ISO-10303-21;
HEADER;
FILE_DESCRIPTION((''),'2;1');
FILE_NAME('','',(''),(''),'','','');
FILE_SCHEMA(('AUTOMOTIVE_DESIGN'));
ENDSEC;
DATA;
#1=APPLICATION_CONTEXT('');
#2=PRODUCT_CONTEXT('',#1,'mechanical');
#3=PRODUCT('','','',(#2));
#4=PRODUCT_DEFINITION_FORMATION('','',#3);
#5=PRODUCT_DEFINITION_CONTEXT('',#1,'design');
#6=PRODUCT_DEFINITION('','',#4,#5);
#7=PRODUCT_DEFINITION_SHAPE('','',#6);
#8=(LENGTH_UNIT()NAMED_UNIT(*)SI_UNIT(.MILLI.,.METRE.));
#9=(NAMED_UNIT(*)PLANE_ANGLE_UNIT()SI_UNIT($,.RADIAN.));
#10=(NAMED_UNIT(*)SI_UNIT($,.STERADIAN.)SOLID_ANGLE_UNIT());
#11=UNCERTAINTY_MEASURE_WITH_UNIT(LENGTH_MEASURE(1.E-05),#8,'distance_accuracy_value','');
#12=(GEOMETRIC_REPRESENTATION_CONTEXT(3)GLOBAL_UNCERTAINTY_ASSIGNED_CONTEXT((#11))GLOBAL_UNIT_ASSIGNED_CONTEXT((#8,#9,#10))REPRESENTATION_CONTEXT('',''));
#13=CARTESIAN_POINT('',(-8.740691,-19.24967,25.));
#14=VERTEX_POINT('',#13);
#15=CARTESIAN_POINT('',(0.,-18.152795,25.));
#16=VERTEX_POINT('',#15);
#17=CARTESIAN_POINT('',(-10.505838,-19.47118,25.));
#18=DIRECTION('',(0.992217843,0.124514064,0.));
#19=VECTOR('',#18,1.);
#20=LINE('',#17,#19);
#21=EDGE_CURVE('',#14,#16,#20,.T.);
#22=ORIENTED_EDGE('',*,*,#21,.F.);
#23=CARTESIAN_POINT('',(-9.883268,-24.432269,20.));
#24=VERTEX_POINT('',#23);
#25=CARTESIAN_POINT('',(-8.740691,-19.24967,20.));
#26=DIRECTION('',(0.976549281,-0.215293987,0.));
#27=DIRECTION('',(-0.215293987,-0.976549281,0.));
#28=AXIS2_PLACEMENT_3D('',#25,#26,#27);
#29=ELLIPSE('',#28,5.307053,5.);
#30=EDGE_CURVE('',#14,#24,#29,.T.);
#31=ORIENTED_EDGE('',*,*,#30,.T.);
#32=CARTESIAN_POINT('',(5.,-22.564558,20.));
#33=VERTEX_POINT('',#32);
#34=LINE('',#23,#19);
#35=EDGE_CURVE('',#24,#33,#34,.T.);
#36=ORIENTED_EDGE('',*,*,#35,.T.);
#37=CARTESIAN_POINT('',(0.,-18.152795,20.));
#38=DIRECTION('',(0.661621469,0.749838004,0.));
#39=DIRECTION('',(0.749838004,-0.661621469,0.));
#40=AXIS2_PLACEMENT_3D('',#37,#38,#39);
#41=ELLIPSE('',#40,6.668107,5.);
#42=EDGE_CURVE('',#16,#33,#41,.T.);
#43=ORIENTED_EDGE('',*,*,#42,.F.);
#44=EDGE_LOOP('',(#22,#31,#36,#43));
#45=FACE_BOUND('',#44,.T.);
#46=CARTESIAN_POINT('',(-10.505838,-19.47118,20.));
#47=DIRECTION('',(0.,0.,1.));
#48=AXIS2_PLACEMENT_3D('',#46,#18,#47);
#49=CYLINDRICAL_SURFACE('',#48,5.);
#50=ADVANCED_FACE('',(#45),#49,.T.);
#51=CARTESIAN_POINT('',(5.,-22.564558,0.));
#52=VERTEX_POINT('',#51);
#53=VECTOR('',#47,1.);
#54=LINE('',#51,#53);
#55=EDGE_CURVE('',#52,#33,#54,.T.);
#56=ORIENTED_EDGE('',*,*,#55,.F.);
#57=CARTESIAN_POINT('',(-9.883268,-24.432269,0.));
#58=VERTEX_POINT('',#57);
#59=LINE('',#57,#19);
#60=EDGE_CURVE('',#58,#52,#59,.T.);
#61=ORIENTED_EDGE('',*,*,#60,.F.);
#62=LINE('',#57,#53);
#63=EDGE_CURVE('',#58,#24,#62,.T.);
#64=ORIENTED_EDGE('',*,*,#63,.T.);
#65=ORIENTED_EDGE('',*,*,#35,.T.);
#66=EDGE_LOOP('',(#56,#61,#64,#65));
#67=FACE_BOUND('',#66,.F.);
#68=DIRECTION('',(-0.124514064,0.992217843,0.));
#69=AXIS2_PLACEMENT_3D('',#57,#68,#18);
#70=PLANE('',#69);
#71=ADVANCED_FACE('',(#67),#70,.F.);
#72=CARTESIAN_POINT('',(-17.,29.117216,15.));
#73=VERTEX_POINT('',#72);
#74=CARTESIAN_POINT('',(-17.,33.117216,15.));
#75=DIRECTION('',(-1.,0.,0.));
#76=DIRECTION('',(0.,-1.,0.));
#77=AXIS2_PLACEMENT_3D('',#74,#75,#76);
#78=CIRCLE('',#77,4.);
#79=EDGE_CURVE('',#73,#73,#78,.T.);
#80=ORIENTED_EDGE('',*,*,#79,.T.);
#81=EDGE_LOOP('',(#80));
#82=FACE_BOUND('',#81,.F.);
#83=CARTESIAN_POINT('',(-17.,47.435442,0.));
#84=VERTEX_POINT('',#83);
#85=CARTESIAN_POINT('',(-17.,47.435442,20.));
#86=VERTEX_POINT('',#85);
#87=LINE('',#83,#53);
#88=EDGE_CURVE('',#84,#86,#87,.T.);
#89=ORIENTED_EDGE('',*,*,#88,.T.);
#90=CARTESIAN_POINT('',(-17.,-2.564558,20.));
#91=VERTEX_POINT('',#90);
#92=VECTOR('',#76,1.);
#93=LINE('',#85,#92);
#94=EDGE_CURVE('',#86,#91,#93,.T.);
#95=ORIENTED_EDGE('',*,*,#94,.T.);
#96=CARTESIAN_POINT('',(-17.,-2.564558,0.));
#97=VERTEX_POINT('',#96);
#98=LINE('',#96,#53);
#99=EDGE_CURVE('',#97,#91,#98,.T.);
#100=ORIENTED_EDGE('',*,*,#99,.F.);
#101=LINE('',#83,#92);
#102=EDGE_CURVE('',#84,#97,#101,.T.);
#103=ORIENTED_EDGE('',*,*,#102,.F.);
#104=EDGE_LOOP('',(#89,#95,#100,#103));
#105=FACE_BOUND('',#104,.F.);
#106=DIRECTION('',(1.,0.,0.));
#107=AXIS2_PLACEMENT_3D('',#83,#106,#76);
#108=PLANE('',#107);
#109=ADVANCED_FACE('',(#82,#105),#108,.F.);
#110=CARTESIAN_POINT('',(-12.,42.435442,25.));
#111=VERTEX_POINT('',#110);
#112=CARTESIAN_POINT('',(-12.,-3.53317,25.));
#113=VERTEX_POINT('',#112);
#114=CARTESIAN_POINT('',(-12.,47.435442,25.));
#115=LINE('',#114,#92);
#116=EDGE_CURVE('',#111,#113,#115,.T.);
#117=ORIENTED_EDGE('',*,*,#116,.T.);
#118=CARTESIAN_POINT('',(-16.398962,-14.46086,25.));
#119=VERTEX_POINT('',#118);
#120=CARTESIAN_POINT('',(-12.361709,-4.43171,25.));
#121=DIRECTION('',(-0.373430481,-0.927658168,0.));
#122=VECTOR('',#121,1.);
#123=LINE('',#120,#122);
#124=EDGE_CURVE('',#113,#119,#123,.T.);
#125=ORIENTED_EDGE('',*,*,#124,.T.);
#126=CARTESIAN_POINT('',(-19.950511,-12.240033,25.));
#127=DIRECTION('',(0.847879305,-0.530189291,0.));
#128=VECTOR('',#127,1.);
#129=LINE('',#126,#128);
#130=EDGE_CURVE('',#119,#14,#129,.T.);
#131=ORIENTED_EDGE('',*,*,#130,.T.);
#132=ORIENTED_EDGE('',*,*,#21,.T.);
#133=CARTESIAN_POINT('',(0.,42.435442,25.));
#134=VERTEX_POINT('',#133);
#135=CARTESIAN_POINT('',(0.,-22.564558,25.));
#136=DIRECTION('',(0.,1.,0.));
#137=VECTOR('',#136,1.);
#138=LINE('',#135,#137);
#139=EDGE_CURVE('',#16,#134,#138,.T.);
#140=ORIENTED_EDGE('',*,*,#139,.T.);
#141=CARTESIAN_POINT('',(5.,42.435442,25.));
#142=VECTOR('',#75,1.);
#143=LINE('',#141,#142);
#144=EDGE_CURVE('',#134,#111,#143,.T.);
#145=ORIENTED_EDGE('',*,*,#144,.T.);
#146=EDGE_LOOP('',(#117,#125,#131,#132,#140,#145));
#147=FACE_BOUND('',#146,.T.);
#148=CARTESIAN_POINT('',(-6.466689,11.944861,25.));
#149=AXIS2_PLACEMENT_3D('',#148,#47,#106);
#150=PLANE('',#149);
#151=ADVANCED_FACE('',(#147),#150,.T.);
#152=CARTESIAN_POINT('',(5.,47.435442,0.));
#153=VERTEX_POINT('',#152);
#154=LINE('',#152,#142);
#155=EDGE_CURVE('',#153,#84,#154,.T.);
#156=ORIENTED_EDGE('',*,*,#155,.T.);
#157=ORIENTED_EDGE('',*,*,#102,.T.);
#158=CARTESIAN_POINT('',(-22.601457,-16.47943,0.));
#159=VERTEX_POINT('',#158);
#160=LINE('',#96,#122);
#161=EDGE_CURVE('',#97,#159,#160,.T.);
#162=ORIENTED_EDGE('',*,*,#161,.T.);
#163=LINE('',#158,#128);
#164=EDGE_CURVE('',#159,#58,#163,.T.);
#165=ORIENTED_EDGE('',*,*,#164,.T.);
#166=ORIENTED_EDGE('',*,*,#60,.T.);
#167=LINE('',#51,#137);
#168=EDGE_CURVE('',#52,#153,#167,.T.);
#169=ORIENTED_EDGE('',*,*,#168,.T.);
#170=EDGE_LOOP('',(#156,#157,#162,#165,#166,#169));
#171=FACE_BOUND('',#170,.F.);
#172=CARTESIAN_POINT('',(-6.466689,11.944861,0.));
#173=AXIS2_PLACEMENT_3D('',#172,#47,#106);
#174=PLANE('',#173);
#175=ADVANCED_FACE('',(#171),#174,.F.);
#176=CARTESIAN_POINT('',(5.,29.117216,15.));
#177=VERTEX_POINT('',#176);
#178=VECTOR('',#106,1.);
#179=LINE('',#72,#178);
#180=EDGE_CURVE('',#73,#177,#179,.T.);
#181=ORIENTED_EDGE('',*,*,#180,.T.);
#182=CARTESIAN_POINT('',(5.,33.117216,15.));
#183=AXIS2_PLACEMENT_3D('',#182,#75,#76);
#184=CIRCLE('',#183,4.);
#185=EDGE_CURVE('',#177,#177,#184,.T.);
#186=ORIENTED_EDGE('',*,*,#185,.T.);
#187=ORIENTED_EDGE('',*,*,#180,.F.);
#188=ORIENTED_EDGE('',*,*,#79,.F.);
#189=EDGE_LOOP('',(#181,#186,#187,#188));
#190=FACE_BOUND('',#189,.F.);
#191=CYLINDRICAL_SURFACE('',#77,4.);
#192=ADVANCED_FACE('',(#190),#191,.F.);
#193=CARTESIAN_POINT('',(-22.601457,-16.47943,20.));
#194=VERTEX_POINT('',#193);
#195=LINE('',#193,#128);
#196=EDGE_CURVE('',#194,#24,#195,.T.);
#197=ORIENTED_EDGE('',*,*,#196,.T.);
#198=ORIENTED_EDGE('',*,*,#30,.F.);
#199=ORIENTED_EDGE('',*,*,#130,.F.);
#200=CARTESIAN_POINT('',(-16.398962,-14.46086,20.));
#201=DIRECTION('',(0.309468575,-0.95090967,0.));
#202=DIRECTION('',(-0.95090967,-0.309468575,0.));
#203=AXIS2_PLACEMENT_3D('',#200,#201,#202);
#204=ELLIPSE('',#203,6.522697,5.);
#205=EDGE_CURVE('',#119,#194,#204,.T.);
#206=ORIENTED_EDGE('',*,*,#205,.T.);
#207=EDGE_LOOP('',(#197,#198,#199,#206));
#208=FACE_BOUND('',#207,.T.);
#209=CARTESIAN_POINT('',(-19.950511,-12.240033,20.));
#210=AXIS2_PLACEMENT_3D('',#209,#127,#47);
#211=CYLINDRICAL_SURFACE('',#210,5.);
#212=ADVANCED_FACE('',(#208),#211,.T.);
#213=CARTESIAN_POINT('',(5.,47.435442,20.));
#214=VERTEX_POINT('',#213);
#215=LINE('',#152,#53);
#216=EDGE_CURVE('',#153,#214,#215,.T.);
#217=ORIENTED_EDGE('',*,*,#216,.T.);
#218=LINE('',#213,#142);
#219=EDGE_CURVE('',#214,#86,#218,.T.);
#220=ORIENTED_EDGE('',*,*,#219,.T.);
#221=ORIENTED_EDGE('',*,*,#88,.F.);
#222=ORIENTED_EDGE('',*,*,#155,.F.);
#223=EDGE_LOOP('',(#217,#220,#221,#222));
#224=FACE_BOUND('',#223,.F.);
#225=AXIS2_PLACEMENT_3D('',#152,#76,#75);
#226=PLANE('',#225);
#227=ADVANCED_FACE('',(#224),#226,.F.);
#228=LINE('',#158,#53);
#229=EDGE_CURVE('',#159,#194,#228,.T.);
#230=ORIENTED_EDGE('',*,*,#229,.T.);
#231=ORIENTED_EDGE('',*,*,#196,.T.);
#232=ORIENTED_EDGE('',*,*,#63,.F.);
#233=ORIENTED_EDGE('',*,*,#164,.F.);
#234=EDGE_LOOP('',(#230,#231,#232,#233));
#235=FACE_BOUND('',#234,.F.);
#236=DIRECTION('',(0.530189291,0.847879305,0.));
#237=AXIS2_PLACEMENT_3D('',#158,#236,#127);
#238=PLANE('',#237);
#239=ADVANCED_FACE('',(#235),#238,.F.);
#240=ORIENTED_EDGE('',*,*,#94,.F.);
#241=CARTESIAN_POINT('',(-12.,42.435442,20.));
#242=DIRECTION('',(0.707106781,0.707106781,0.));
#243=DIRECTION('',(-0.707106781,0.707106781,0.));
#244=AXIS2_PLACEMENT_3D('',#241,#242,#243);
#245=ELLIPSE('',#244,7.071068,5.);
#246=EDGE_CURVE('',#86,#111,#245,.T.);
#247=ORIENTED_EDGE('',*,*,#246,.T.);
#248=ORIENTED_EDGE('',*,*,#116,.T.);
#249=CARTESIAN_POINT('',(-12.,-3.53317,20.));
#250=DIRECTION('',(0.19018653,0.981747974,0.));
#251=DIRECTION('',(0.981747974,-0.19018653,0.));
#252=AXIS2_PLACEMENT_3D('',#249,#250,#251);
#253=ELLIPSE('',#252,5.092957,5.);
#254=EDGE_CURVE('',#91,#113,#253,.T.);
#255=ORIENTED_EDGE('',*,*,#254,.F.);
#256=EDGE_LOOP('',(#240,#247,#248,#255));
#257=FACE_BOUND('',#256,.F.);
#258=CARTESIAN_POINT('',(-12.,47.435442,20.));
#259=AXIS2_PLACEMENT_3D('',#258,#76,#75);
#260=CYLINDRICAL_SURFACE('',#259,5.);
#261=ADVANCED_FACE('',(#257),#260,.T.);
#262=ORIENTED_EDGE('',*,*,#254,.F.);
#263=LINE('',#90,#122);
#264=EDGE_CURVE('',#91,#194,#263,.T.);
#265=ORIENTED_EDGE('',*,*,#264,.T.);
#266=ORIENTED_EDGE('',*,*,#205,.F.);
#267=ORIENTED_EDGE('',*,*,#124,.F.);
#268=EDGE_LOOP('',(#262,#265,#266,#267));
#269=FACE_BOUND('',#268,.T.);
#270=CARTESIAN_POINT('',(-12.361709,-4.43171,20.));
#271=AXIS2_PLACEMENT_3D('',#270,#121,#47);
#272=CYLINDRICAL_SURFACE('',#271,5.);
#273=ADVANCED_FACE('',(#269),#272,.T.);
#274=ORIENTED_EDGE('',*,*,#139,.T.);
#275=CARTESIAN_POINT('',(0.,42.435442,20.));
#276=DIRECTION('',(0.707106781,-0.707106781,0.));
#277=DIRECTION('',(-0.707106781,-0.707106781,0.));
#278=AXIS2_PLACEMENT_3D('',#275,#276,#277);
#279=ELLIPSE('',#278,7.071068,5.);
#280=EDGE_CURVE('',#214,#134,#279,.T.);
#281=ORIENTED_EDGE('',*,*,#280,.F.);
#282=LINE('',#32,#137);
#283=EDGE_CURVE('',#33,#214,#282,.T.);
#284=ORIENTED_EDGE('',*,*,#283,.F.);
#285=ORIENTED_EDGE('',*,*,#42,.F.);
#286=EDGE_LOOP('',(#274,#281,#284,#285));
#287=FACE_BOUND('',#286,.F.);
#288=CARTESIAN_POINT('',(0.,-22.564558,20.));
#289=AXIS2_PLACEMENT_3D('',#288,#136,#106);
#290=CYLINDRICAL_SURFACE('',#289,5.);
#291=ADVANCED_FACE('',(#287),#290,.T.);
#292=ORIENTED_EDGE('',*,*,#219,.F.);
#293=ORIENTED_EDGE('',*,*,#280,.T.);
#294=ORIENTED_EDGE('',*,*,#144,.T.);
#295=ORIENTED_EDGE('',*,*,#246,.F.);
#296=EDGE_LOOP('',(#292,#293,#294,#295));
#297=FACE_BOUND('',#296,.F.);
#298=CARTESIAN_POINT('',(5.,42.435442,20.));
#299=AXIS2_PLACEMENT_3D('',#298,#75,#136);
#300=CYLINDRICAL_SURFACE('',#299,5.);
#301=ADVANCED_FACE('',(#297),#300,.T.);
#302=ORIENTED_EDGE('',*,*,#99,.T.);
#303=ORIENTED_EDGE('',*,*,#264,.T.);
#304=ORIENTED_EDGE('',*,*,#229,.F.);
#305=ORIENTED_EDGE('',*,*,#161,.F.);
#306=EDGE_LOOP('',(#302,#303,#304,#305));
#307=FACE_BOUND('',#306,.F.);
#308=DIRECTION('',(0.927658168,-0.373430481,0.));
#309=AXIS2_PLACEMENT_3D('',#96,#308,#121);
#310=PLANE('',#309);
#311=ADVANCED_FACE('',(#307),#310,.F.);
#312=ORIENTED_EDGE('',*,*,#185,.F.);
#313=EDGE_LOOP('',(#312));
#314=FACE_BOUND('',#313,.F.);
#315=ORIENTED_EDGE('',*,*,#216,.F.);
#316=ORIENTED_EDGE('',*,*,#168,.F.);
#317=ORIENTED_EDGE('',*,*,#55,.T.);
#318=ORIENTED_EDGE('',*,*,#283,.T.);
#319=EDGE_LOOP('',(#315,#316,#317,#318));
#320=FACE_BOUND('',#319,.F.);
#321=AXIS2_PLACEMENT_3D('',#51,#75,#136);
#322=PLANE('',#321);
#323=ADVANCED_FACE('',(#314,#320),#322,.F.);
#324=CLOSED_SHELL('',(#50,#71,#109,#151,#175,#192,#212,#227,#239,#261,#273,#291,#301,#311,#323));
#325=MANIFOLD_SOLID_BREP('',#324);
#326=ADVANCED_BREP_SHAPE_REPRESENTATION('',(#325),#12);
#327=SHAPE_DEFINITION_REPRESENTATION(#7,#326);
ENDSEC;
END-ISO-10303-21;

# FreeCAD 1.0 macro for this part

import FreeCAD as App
import Part
import Sketcher

V = App.Vector
Q = App.Units.Quantity


def edges_at(feature, points):
    """Names of the edges that pass closest to the given points."""
    edges = feature.Shape.Edges
    near = lambda p: min(range(len(edges)), key=lambda i: edges[i].distToShape(Part.Vertex(*p))[0])
    return sorted({f"Edge{near(p) + 1}" for p in points})

doc = App.newDocument("Part")
body = doc.addObject("PartDesign::Body", "Body")

sketch1 = doc.addObject("Sketcher::SketchObject", "Sketch")
body.addObject(sketch1)
sketch1.AttachmentSupport = (doc.XY_Plane, [""])
sketch1.MapMode = "FlatFace"
sketch1.addGeometry(Part.LineSegment(V(5, 47.435442, 0), V(-17, 47.435442, 0)), False)
sketch1.addGeometry(Part.LineSegment(V(-17, 47.435442, 0), V(-17, -2.564558, 0)), False)
sketch1.addGeometry(Part.LineSegment(V(-17, -2.564558, 0), V(-22.601457, -16.47943, 0)), False)
sketch1.addGeometry(Part.LineSegment(V(-22.601457, -16.47943, 0), V(-9.883268, -24.432269, 0)), False)
sketch1.addGeometry(Part.LineSegment(V(-9.883268, -24.432269, 0), V(5, -22.564558, 0)), False)
sketch1.addGeometry(Part.LineSegment(V(5, -22.564558, 0), V(5, 47.435442, 0)), False)
sketch1.addConstraint(Sketcher.Constraint("Coincident", 0, 2, 1, 1))
sketch1.addConstraint(Sketcher.Constraint("Coincident", 1, 2, 2, 1))
sketch1.addConstraint(Sketcher.Constraint("Coincident", 2, 2, 3, 1))
sketch1.addConstraint(Sketcher.Constraint("Coincident", 3, 2, 4, 1))
sketch1.addConstraint(Sketcher.Constraint("Coincident", 4, 2, 5, 1))
sketch1.addConstraint(Sketcher.Constraint("Coincident", 5, 2, 0, 1))
sketch1.addConstraint(Sketcher.Constraint("Horizontal", 0))
sketch1.addConstraint(Sketcher.Constraint("Vertical", 1))
sketch1.addConstraint(Sketcher.Constraint("Vertical", 5))
sketch1.addConstraint(Sketcher.Constraint("Equal", 2, 3))
sketch1.addConstraint(Sketcher.Constraint("Equal", 3, 4))
sketch1.addConstraint(Sketcher.Constraint("DistanceX", 0, 2, 0, 1, Q("22 mm")))
sketch1.addConstraint(Sketcher.Constraint("DistanceY", 1, 2, 1, 1, Q("50 mm")))
sketch1.addConstraint(Sketcher.Constraint("DistanceY", 5, 1, 5, 2, Q("70 mm")))
sketch1.addConstraint(Sketcher.Constraint("Distance", 2, Q("14.999999 mm")))
sketch1.addConstraint(Sketcher.Constraint("DistanceX", 0, 2, -1, 1, Q("17 mm")))
sketch1.addConstraint(Sketcher.Constraint("DistanceY", 2, 2, -1, 1, Q("16.47943 mm")))
sketch1.addConstraint(Sketcher.Constraint("DistanceY", 3, 2, -1, 1, Q("24.432269 mm")))
pad1 = doc.addObject("PartDesign::Pad", "Pad")
body.addObject(pad1)
pad1.Profile = sketch1
pad1.Length = 25

sketch2 = doc.addObject("Sketcher::SketchObject", "Sketch001")
body.addObject(sketch2)
sketch2.AttachmentSupport = (doc.YZ_Plane, [""])
sketch2.MapMode = "FlatFace"
sketch2.AttachmentOffset = App.Placement(V(0, 0, -17), App.Rotation())
sketch2.addGeometry(Part.Circle(V(33.117216, 15, 0), V(0, 0, 1), 4), False)
sketch2.addConstraint(Sketcher.Constraint("Diameter", 0, Q("8 mm")))
sketch2.addConstraint(Sketcher.Constraint("DistanceY", -1, 1, 0, 3, Q("15 mm")))
sketch2.addConstraint(Sketcher.Constraint("DistanceX", -1, 1, 0, 3, Q("33.117216 mm")))
pocket1 = doc.addObject("PartDesign::Pocket", "Pocket")
body.addObject(pocket1)
pocket1.Profile = sketch2
pocket1.Type = "ThroughAll"
pocket1.Reversed = True
doc.recompute()

fillet = doc.addObject("PartDesign::Fillet", "Fillet")
body.addObject(fillet)
fillet.Base = (pocket1, edges_at(pocket1, [
    (-6, 47.435, 25),
    (-17, 22.435, 25),
    (-19.801, -9.522, 25),
    (-16.242, -20.456, 25),
    (-2.442, -23.498, 25),
    (5, 12.435, 25),
]))
fillet.Radius = 5

doc.recompute()
